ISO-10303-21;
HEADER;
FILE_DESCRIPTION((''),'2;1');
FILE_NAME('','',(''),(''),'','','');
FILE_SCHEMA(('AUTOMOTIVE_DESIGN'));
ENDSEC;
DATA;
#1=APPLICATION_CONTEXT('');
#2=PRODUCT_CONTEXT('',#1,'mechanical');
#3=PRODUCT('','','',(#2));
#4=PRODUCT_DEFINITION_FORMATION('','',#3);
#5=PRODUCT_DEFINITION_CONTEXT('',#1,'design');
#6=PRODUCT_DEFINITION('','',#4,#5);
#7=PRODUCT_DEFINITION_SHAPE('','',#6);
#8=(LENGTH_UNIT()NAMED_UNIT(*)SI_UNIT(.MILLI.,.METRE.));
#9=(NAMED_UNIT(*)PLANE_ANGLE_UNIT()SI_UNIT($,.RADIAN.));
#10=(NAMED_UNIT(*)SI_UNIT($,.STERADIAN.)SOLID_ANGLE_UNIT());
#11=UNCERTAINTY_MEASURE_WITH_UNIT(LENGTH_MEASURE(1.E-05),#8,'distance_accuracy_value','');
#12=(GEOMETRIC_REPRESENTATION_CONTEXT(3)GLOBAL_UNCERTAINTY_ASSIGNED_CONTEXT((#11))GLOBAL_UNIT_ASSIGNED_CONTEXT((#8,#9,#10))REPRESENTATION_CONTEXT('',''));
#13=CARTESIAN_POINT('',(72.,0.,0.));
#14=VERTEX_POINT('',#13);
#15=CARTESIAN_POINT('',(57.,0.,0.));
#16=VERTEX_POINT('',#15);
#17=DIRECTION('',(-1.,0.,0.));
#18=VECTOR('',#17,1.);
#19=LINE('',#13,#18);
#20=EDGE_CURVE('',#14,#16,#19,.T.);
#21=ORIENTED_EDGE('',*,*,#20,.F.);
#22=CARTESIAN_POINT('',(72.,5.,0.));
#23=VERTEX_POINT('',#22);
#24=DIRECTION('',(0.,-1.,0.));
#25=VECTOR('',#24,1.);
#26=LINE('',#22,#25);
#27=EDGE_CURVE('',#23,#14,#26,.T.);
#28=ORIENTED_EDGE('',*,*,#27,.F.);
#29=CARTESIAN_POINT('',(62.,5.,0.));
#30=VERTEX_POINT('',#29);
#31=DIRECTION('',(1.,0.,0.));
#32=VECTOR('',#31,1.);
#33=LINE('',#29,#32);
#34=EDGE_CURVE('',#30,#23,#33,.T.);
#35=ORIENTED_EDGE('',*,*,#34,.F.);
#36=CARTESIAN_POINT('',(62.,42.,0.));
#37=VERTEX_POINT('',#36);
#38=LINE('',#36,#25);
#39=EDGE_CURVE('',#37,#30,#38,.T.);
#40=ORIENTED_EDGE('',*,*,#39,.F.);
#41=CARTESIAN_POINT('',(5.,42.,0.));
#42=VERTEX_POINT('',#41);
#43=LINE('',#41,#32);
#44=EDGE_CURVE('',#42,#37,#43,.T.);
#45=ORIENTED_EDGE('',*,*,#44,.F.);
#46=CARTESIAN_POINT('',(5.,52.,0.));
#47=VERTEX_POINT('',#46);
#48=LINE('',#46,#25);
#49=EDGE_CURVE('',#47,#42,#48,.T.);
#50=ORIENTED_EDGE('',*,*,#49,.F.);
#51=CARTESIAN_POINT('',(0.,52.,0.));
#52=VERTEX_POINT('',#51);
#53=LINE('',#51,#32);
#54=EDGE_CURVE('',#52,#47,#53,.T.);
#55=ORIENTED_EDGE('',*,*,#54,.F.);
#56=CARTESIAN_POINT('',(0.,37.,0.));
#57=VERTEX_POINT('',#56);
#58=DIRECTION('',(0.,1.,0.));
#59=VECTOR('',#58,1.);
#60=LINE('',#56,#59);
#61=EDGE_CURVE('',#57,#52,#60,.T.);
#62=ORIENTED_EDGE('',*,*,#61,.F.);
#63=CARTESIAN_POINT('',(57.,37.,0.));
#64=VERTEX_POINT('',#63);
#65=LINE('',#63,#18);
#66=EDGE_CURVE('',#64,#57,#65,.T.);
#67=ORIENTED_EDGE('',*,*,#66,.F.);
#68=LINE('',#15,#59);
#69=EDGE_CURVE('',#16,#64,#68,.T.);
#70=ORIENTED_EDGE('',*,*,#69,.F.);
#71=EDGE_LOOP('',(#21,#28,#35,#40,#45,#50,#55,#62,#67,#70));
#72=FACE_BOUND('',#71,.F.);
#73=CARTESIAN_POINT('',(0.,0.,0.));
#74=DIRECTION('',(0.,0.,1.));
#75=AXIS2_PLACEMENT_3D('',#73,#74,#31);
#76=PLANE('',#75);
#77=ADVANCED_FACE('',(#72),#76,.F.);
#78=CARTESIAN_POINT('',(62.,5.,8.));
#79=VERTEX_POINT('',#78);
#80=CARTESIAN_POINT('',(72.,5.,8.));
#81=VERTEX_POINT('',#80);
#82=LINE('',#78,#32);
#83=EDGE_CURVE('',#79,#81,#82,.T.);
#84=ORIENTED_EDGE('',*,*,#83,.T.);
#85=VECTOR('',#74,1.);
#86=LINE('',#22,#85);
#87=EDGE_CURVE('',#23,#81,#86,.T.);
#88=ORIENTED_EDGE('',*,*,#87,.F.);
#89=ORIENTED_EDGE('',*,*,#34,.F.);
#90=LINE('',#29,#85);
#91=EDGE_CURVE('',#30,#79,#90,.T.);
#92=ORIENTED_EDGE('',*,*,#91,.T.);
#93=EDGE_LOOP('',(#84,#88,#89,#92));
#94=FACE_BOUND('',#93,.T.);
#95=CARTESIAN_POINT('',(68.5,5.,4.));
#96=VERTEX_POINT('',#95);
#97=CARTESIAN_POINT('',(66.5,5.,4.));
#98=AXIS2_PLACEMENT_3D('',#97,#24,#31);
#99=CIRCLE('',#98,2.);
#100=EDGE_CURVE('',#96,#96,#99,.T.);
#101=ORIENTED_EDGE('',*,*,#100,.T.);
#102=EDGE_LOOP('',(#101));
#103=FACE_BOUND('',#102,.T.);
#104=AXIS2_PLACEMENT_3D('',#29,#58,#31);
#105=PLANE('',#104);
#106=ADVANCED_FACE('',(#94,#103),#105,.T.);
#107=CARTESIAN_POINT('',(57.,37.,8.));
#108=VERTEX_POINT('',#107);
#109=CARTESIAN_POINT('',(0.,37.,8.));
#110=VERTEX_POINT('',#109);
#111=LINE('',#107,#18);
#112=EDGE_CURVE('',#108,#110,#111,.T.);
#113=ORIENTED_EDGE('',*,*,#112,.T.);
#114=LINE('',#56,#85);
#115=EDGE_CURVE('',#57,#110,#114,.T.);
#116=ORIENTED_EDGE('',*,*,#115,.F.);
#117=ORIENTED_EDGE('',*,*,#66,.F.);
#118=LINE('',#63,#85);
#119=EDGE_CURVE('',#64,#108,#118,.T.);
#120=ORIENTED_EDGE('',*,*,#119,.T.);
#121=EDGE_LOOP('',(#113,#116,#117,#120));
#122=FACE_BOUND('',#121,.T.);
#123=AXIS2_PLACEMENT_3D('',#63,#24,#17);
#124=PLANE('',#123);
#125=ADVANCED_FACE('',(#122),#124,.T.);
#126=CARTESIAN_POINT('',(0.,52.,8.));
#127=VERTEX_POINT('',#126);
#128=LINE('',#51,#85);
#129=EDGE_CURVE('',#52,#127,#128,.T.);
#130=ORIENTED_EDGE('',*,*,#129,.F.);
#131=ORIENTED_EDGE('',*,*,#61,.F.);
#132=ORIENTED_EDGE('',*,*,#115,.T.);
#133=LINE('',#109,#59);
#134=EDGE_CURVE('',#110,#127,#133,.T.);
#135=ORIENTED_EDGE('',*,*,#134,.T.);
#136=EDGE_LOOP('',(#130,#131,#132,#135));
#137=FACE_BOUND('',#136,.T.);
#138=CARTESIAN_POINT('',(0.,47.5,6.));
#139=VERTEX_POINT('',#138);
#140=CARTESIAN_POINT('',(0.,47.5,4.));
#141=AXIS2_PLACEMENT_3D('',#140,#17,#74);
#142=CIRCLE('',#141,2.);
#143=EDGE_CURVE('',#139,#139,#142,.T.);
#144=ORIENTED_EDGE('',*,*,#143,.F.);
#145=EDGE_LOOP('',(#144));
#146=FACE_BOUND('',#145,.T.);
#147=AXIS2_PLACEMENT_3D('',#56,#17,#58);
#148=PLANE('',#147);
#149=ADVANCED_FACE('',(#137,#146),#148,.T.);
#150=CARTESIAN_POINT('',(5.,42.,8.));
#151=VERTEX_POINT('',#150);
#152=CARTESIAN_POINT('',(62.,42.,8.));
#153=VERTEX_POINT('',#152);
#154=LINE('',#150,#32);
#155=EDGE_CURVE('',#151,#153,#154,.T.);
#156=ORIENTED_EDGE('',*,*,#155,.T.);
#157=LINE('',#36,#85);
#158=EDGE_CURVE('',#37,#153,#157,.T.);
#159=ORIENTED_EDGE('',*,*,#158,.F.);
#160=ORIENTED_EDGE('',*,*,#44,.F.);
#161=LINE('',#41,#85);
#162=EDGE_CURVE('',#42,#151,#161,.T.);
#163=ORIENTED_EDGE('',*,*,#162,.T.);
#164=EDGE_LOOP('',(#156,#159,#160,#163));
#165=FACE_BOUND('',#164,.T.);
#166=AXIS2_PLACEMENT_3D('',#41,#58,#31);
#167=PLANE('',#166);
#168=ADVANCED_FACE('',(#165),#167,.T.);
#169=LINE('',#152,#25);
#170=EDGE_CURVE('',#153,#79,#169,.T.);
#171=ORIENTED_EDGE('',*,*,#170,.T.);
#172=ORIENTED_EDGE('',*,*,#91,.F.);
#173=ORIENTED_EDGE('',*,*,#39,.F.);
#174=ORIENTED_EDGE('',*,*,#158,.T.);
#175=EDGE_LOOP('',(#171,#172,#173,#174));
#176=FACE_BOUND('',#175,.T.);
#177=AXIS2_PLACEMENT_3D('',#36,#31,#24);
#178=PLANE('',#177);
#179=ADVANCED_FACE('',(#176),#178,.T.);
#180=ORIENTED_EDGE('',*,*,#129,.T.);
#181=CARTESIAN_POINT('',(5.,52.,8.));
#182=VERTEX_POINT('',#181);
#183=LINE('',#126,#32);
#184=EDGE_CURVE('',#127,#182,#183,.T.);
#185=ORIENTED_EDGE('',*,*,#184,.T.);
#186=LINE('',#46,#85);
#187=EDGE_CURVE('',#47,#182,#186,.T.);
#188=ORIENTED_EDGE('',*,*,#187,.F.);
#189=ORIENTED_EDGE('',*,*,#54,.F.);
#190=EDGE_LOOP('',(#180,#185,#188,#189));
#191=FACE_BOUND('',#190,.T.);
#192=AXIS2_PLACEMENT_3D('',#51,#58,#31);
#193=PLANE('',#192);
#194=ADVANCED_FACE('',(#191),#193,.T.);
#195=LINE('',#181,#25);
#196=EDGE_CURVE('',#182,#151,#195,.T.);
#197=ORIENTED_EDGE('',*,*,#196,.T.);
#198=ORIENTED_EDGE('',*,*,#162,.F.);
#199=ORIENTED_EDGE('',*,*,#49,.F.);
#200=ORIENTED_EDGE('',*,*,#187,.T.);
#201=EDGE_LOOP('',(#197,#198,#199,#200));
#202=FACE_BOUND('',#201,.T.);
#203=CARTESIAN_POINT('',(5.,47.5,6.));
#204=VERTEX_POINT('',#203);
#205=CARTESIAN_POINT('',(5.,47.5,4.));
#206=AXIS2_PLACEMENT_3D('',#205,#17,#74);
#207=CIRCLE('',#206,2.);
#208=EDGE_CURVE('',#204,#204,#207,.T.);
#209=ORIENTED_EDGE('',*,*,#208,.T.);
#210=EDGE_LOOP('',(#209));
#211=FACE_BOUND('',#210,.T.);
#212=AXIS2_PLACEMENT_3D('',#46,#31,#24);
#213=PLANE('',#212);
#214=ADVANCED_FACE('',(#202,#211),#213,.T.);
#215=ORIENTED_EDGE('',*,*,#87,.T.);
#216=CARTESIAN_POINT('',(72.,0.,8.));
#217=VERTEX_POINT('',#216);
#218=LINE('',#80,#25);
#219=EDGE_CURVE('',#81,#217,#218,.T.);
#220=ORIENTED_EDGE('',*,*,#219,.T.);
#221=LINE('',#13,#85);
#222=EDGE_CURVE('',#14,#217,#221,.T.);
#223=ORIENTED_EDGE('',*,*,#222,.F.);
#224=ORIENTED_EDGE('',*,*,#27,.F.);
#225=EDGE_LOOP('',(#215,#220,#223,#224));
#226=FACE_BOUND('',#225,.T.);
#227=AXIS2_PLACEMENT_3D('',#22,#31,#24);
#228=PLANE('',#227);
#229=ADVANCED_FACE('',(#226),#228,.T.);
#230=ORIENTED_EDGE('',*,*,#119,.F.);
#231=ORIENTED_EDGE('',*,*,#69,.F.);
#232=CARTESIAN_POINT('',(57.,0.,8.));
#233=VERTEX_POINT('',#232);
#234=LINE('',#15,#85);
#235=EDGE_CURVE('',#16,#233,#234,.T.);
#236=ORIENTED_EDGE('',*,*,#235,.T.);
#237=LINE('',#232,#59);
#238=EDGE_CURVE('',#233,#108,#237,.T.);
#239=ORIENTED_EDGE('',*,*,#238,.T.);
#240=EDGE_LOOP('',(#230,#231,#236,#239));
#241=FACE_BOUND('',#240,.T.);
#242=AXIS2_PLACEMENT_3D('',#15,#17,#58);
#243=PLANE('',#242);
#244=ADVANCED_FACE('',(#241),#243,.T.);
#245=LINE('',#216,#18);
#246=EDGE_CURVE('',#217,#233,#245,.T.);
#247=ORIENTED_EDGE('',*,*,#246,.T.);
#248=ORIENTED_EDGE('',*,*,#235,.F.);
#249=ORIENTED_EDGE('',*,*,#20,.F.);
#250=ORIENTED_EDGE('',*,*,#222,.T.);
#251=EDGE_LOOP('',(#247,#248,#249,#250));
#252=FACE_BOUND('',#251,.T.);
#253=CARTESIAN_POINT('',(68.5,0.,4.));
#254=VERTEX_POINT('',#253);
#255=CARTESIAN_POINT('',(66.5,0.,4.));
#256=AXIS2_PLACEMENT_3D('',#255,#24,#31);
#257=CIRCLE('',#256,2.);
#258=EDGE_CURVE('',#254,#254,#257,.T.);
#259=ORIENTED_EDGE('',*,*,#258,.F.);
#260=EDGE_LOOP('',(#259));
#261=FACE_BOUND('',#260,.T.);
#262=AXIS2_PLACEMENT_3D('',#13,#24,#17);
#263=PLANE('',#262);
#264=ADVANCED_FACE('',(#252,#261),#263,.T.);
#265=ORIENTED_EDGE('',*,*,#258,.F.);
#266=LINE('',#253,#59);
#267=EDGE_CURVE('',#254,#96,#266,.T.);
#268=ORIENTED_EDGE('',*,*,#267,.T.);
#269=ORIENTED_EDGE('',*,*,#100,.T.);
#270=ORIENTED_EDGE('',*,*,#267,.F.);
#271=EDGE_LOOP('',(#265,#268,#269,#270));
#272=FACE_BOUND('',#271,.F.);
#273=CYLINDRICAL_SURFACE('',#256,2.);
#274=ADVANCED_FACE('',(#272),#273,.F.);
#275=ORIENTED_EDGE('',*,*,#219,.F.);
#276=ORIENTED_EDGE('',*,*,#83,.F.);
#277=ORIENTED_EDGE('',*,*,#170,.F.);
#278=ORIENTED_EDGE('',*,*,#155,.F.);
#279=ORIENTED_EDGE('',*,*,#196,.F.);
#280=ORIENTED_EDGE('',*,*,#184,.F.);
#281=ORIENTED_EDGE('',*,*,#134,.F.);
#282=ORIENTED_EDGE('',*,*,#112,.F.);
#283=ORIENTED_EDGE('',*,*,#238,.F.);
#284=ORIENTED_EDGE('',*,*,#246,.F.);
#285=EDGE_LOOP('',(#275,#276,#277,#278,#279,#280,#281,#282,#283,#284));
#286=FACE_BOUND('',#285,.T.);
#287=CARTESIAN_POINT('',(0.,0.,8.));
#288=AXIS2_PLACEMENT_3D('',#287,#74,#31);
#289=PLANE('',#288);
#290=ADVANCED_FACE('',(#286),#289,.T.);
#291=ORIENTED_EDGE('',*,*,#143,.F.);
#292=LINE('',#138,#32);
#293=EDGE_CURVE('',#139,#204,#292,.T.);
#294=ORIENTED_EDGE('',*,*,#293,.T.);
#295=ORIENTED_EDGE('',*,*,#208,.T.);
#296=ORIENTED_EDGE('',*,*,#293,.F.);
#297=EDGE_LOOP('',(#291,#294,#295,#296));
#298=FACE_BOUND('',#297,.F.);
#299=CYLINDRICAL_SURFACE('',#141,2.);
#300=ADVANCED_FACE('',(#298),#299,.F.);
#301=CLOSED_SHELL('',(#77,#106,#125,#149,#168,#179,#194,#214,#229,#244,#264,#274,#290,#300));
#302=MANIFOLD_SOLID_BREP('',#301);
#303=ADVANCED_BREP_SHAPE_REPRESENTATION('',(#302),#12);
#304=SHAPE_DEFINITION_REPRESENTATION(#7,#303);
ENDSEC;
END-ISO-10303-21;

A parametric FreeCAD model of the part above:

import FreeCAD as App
import Part
import Sketcher

doc = App.newDocument("Part")
params = doc.addObject("Spreadsheet::Sheet", "Params")
for row, (alias, value) in enumerate([
    ("sketch1_width", "57 mm"),
    ("sketch1_width2", "15 mm"),
    ("sketch1_width3", "5 mm"),
    ("sketch1_height", "37 mm"),
    ("pad1_length", "8 mm"),
    ("sketch2_diameter", "4 mm"),
    ("sketch3_diameter", "4 mm"),
], start=1):
    params.set(f"A{row}", alias)
    params.set(f"B{row}", "=" + value)
    params.setAlias(f"B{row}", alias)

body = doc.addObject("PartDesign::Body", "Body")

sketch1 = doc.addObject("Sketcher::SketchObject", "Sketch")
body.addObject(sketch1)
sketch1.AttachmentSupport = (doc.XY_Plane, [""])
sketch1.MapMode = "FlatFace"
sketch1.addGeometry(Part.LineSegment(App.Vector(0, 52, 0), App.Vector(0, 37, 0)), False)
sketch1.addGeometry(Part.LineSegment(App.Vector(0, 37, 0), App.Vector(57, 37, 0)), False)
sketch1.addGeometry(Part.LineSegment(App.Vector(57, 37, 0), App.Vector(57, 0, 0)), False)
sketch1.addGeometry(Part.LineSegment(App.Vector(57, 0, 0), App.Vector(72, 0, 0)), False)
sketch1.addGeometry(Part.LineSegment(App.Vector(72, 0, 0), App.Vector(72, 5, 0)), False)
sketch1.addGeometry(Part.LineSegment(App.Vector(72, 5, 0), App.Vector(62, 5, 0)), False)
sketch1.addGeometry(Part.LineSegment(App.Vector(62, 5, 0), App.Vector(62, 42, 0)), False)
sketch1.addGeometry(Part.LineSegment(App.Vector(62, 42, 0), App.Vector(5, 42, 0)), False)
sketch1.addGeometry(Part.LineSegment(App.Vector(5, 42, 0), App.Vector(5, 52, 0)), False)
sketch1.addGeometry(Part.LineSegment(App.Vector(5, 52, 0), App.Vector(0, 52, 0)), False)
sketch1.addConstraint(Sketcher.Constraint("Coincident", 0, 2, 1, 1))
sketch1.addConstraint(Sketcher.Constraint("Coincident", 1, 2, 2, 1))
sketch1.addConstraint(Sketcher.Constraint("Coincident", 2, 2, 3, 1))
sketch1.addConstraint(Sketcher.Constraint("Coincident", 3, 2, 4, 1))
sketch1.addConstraint(Sketcher.Constraint("Coincident", 4, 2, 5, 1))
sketch1.addConstraint(Sketcher.Constraint("Coincident", 5, 2, 6, 1))
sketch1.addConstraint(Sketcher.Constraint("Coincident", 6, 2, 7, 1))
sketch1.addConstraint(Sketcher.Constraint("Coincident", 7, 2, 8, 1))
sketch1.addConstraint(Sketcher.Constraint("Coincident", 8, 2, 9, 1))
sketch1.addConstraint(Sketcher.Constraint("Coincident", 9, 2, 0, 1))
sketch1.addConstraint(Sketcher.Constraint("Vertical", 0))
sketch1.addConstraint(Sketcher.Constraint("Horizontal", 1))
sketch1.addConstraint(Sketcher.Constraint("Vertical", 2))
sketch1.addConstraint(Sketcher.Constraint("Horizontal", 3))
sketch1.addConstraint(Sketcher.Constraint("Vertical", 4))
sketch1.addConstraint(Sketcher.Constraint("Horizontal", 5))
sketch1.addConstraint(Sketcher.Constraint("Vertical", 6))
sketch1.addConstraint(Sketcher.Constraint("Horizontal", 7))
sketch1.addConstraint(Sketcher.Constraint("Vertical", 8))
sketch1.addConstraint(Sketcher.Constraint("Horizontal", 9))
sketch1.addConstraint(Sketcher.Constraint("PointOnObject", 0, 2, -2))
sketch1.addConstraint(Sketcher.Constraint("PointOnObject", 2, 2, -1))
sketch1.addConstraint(Sketcher.Constraint("Equal", 1, 7))
sketch1.addConstraint(Sketcher.Constraint("Equal", 3, 0))
sketch1.addConstraint(Sketcher.Constraint("Equal", 9, 4))
sketch1.addConstraint(Sketcher.Constraint("Equal", 2, 6))
sketch1.addConstraint(Sketcher.Constraint("DistanceX", 1, 1, 1, 2, 57.0))
sketch1.addConstraint(Sketcher.Constraint("DistanceX", 3, 1, 3, 2, 15.0))
sketch1.addConstraint(Sketcher.Constraint("DistanceX", 9, 2, 9, 1, 5.0))
sketch1.addConstraint(Sketcher.Constraint("DistanceY", 2, 2, 2, 1, 37.0))
sketch1.setExpression("Constraints[26]", "Params.sketch1_width")
sketch1.setExpression("Constraints[27]", "Params.sketch1_width2")
sketch1.setExpression("Constraints[28]", "Params.sketch1_width3")
sketch1.setExpression("Constraints[29]", "Params.sketch1_height")
pad1 = doc.addObject("PartDesign::Pad", "Pad")
body.addObject(pad1)
pad1.Profile = sketch1
pad1.setExpression("Length", "Params.pad1_length")

sketch2 = doc.addObject("Sketcher::SketchObject", "Sketch001")
body.addObject(sketch2)
sketch2.AttachmentSupport = (doc.YZ_Plane, [""])
sketch2.MapMode = "FlatFace"
sketch2.addGeometry(Part.Circle(App.Vector(47.5, 4, 0), App.Vector(0, 0, 1), 2), False)
sketch2.addConstraint(Sketcher.Constraint("Diameter", 0, 4.0))
sketch2.addConstraint(Sketcher.Constraint("DistanceY", -1, 1, 0, 3, 4.0))
sketch2.addConstraint(Sketcher.Constraint("DistanceX", -1, 1, 0, 3, 47.5))
sketch2.setExpression("Constraints[0]", "Params.sketch2_diameter")
pocket1 = doc.addObject("PartDesign::Pocket", "Pocket")
body.addObject(pocket1)
pocket1.Profile = sketch2
pocket1.Type = "UpToFirst"
pocket1.Reversed = True

sketch3 = doc.addObject("Sketcher::SketchObject", "Sketch002")
body.addObject(sketch3)
sketch3.AttachmentSupport = (doc.XZ_Plane, [""])
sketch3.MapMode = "FlatFace"
sketch3.addGeometry(Part.Circle(App.Vector(66.5, 4, 0), App.Vector(0, 0, 1), 2), False)
sketch3.addConstraint(Sketcher.Constraint("Diameter", 0, 4.0))
sketch3.addConstraint(Sketcher.Constraint("DistanceY", -1, 1, 0, 3, 4.0))
sketch3.addConstraint(Sketcher.Constraint("DistanceX", -1, 1, 0, 3, 66.5))
sketch3.setExpression("Constraints[0]", "Params.sketch3_diameter")
pocket2 = doc.addObject("PartDesign::Pocket", "Pocket001")
body.addObject(pocket2)
pocket2.Profile = sketch3
pocket2.Type = "UpToFirst"

doc.recompute()
